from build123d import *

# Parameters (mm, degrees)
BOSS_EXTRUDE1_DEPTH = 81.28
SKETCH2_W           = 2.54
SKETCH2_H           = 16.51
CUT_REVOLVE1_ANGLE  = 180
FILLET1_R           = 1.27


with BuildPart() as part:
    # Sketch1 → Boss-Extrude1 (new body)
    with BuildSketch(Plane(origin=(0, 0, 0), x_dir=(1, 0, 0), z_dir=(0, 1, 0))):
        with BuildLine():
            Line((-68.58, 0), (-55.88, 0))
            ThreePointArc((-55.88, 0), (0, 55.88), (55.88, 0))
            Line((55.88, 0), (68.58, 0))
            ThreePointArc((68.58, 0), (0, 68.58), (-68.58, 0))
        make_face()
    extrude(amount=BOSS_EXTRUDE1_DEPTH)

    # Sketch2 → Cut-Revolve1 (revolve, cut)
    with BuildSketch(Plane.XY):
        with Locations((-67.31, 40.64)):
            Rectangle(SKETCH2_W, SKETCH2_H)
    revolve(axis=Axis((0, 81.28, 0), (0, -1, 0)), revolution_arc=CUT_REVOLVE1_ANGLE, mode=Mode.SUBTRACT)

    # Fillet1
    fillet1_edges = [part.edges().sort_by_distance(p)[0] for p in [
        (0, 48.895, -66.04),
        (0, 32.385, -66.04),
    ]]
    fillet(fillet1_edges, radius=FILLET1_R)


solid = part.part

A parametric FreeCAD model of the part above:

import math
import FreeCAD as App
import Part
import Sketcher
Q = App.Units.Quantity


def edges_at(feature, points):
    """Names of the edges that pass closest to the given points."""
    edges = feature.Shape.Edges
    near = lambda p: min(range(len(edges)), key=lambda i: edges[i].distToShape(Part.Vertex(*p))[0])
    return sorted({f"Edge{near(p) + 1}" for p in points})

doc = App.newDocument("Part")
body = doc.addObject("PartDesign::Body", "Body")

sketch1 = body.newObject("Sketcher::SketchObject", "Sketch")
sketch1.AttachmentSupport = (doc.getObject("XZ_Plane"), [""])
sketch1.MapMode = "FlatFace"
sketch1.addGeometry([
    Part.LineSegment(App.Vector(-68.58, 0, 0), App.Vector(-55.88, 0, 0)),
    Part.ArcOfCircle(Part.Circle(App.Vector(0, 0, 0), App.Vector(0, 0, 1), 55.88), math.radians(180), math.radians(360)),
    Part.LineSegment(App.Vector(55.88, 0, 0), App.Vector(68.58, 0, 0)),
    Part.ArcOfCircle(Part.Circle(App.Vector(0, 0, 0), App.Vector(0, 0, 1), 68.58), math.radians(180), math.radians(360)),
], False)
sketch1.addConstraint([
    Sketcher.Constraint("Coincident", 0, 2, 1, 1),
    Sketcher.Constraint("Coincident", 1, 2, 2, 1),
    Sketcher.Constraint("Coincident", 2, 2, 3, 2),
    Sketcher.Constraint("Coincident", 3, 1, 0, 1),
    Sketcher.Constraint("Horizontal", 0),
    Sketcher.Constraint("Horizontal", 2),
    Sketcher.Constraint("Coincident", 1, 3, -1, 1),
    Sketcher.Constraint("Coincident", 3, 3, -1, 1),
    Sketcher.Constraint("PointOnObject", 0, 2, -1),
    Sketcher.Constraint("PointOnObject", 1, 2, -1),
    Sketcher.Constraint("Radius", 1, Q("2.2 in")),
    Sketcher.Constraint("Radius", 3, Q("2.7 in")),
])
pad1 = body.newObject("PartDesign::Pad", "Pad")
pad1.Profile = sketch1
pad1.Length = Q("3.2 in")
pad1.Reversed = True

sketch2 = body.newObject("Sketcher::SketchObject", "Sketch001")
sketch2.AttachmentSupport = (doc.getObject("XY_Plane"), [""])
sketch2.MapMode = "FlatFace"
sketch2.addGeometry([
    Part.LineSegment(App.Vector(-68.58, 48.895, 0), App.Vector(-68.58, 32.385, 0)),
    Part.LineSegment(App.Vector(-68.58, 32.385, 0), App.Vector(-66.04, 32.385, 0)),
    Part.LineSegment(App.Vector(-66.04, 32.385, 0), App.Vector(-66.04, 48.895, 0)),
    Part.LineSegment(App.Vector(-66.04, 48.895, 0), App.Vector(-68.58, 48.895, 0)),
], False)
sketch2.addConstraint([
    Sketcher.Constraint("Coincident", 0, 2, 1, 1),
    Sketcher.Constraint("Coincident", 1, 2, 2, 1),
    Sketcher.Constraint("Coincident", 2, 2, 3, 1),
    Sketcher.Constraint("Coincident", 3, 2, 0, 1),
    Sketcher.Constraint("Vertical", 0),
    Sketcher.Constraint("Horizontal", 1),
    Sketcher.Constraint("Vertical", 2),
    Sketcher.Constraint("Horizontal", 3),
    Sketcher.Constraint("DistanceX", 1, 1, 1, 2, Q("0.1 in")),
    Sketcher.Constraint("DistanceY", 0, 2, 0, 1, Q("0.65 in")),
    Sketcher.Constraint("DistanceX", 0, 2, -1, 1, Q("2.7 in")),
    Sketcher.Constraint("DistanceY", -1, 1, 0, 2, Q("1.275 in")),
])
groove = body.newObject("PartDesign::Groove", "Groove")
groove.Profile = sketch2
groove.ReferenceAxis = (sketch2, ["V_Axis"])
groove.Angle = 180
groove.Reversed = True
doc.recompute()

fillet = body.newObject("PartDesign::Fillet", "Fillet")
fillet.Base = (groove, edges_at(groove, [(0, 48.895, -66.04), (0, 32.385, -66.04)]))
fillet.Radius = Q("0.05 in")

doc.recompute()
